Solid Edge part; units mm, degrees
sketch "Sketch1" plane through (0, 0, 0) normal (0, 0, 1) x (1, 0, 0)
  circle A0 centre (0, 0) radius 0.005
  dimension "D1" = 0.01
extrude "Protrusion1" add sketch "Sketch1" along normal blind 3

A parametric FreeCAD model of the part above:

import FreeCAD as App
import Part
import Sketcher

V = App.Vector
Q = App.Units.Quantity

doc = App.newDocument("Part")
body = doc.addObject("PartDesign::Body", "Body")

sketch1 = body.newObject("Sketcher::SketchObject", "Sketch")
sketch1.AttachmentSupport = (doc.getObject("XY_Plane"), [""])
sketch1.MapMode = "FlatFace"
sketch1.addGeometry(Part.Circle(V(0, 0, 0), V(0, 0, 1), 0.005), False)
sketch1.addConstraint([
    Sketcher.Constraint("Coincident", 0, 3, -1, 1),
    Sketcher.Constraint("Diameter", 0, Q("0.01 mm")),
])
pad1 = body.newObject("PartDesign::Pad", "Pad")
pad1.Profile = sketch1
pad1.Length = 3

doc.recompute()
